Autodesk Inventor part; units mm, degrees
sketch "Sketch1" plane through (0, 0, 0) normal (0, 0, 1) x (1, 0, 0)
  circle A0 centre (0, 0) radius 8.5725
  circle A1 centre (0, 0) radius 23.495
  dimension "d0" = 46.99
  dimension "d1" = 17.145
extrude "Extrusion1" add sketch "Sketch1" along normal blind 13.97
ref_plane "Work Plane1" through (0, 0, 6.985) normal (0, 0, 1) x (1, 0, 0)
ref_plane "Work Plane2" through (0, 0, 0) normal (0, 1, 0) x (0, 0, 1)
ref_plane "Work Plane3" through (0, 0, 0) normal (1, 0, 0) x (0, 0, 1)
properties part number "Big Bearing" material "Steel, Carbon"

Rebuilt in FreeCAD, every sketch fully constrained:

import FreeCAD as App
import Part
import Sketcher
from FreeCAD import Vector
Q = App.Units.Quantity

doc = App.newDocument("Part")
body = doc.addObject("PartDesign::Body", "Body")

# Sketch on XY plane
sketch1 = body.newObject("Sketcher::SketchObject", "Sketch")
sketch1.AttachmentSupport = (doc.getObject("XY_Plane"), [""])
sketch1.MapMode = "FlatFace"
sketch1.addGeometry([
    Part.Circle(Vector(0, 0, 0), Vector(0, 0, 1), 23),
    Part.Circle(Vector(0, 0, 0), Vector(0, 0, 1), 9),
], False)
sketch1.addConstraint([
    Sketcher.Constraint("Coincident", 0, 3, -1, 1),
    Sketcher.Constraint("Coincident", 1, 3, -1, 1),
    Sketcher.Constraint("Diameter", 0, Q("1.85 in")),
    Sketcher.Constraint("Diameter", 1, Q("0.675 in")),
])
pad1 = body.newObject("PartDesign::Pad", "Pad")
pad1.Profile = sketch1
pad1.Length = Q("0.55 in")

doc.recompute()
